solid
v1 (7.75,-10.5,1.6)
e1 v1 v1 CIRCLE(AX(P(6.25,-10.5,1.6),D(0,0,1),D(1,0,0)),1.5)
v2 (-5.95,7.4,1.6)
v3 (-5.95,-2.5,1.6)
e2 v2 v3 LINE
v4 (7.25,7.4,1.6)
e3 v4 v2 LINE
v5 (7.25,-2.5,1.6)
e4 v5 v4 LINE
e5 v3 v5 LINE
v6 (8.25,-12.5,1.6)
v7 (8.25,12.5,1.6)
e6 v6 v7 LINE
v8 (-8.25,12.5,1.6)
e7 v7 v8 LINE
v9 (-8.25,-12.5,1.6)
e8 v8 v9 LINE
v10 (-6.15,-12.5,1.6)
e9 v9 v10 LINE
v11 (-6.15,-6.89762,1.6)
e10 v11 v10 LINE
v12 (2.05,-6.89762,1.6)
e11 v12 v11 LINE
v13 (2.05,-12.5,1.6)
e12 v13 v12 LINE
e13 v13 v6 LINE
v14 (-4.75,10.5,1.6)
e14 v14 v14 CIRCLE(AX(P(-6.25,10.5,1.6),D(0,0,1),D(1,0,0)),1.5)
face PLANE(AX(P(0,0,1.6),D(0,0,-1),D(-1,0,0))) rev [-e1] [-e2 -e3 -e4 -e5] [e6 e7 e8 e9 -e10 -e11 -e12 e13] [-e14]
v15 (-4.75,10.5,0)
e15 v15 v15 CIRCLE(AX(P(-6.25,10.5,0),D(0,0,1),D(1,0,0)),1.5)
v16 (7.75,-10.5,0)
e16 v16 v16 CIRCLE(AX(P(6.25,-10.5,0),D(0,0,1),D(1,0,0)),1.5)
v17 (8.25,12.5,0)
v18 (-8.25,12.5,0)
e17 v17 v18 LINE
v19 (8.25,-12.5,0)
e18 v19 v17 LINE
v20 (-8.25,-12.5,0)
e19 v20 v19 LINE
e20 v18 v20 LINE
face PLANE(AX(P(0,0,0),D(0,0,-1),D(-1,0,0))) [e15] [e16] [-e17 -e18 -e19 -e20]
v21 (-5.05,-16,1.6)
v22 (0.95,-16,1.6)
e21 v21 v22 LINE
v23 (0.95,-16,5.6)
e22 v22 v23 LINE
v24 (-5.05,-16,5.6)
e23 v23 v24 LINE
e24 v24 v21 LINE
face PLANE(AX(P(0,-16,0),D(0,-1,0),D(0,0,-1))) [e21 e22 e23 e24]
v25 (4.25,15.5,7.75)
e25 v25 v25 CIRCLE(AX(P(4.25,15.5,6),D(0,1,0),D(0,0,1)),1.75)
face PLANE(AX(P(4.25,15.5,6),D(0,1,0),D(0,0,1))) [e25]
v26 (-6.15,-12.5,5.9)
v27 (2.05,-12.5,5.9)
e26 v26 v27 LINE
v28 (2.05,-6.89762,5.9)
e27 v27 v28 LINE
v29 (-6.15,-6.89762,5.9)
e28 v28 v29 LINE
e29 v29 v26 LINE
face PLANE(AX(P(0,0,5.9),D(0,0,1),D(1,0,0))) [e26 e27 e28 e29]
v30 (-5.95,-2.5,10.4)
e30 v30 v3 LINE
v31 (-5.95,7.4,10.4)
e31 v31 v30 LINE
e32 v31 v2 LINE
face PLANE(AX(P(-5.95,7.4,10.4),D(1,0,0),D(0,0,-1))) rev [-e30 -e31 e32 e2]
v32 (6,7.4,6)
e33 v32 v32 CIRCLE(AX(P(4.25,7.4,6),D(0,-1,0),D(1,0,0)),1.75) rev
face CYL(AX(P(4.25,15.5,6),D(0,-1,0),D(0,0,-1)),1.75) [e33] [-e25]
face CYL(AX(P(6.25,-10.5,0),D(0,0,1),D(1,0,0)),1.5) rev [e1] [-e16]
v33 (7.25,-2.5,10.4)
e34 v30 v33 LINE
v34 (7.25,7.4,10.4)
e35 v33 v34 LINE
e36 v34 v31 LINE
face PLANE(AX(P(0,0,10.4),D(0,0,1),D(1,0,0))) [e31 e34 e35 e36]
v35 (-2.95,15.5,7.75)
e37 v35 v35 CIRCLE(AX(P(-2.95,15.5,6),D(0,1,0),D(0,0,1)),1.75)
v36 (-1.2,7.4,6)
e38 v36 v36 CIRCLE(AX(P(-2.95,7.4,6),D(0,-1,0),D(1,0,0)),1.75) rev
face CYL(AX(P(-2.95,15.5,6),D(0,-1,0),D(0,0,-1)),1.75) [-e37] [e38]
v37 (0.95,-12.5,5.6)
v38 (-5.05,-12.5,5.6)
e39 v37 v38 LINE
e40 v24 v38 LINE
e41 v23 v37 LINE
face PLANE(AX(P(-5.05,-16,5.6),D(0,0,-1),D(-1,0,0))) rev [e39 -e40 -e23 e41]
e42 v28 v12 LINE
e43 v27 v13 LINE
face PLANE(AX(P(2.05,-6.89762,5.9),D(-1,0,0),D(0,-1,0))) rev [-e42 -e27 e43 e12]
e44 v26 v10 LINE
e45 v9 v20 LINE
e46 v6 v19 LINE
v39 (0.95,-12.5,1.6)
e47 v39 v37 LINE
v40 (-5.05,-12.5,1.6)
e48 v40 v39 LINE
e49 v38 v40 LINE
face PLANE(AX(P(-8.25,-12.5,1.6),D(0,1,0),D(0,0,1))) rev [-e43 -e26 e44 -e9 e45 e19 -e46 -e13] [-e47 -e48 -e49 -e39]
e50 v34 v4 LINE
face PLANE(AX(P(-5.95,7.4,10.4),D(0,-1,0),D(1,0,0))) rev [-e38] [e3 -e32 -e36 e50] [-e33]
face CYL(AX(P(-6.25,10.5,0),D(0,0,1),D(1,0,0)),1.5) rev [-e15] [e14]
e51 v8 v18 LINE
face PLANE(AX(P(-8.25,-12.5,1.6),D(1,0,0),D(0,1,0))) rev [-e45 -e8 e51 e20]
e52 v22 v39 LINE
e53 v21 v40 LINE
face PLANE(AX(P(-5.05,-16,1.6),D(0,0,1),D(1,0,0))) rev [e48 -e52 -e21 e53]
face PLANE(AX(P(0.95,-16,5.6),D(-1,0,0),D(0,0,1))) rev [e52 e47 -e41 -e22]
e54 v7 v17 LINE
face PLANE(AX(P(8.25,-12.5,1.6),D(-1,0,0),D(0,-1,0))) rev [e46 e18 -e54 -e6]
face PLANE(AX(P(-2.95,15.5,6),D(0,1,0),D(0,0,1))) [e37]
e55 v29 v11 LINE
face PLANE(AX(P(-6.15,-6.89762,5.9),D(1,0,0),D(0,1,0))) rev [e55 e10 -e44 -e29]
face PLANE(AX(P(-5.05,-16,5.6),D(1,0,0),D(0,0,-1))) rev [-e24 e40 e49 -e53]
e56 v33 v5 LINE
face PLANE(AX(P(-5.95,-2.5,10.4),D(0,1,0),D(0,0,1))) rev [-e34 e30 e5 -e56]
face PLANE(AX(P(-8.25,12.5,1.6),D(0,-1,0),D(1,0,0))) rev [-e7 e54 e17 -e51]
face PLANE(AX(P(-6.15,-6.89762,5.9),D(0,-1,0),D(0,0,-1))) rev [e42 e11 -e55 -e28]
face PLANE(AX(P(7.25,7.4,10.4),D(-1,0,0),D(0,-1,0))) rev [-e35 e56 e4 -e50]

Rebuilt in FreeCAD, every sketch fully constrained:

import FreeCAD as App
import Part
import Sketcher
Q = App.Units.Quantity


def add_polygon(sketch, points):
    """Adds a closed chain of lines whose ends are joined by coincident constraints."""
    first, n = sketch.GeometryCount, len(points)
    for a, b in zip(points, points[1:] + points[:1]):
        sketch.addGeometry(Part.LineSegment(App.Vector(*a, 0), App.Vector(*b, 0)), False)
    for i in range(n):
        sketch.addConstraint(Sketcher.Constraint("Coincident", first + i, 2, first + (i + 1) % n, 1))

doc = App.newDocument("Part")
body = doc.addObject("PartDesign::Body", "Body")

# Sketch on XY plane
sketch1 = body.newObject("Sketcher::SketchObject", "Sketch")
sketch1.AttachmentSupport = (doc.getObject("XY_Plane"), [""])
sketch1.MapMode = "FlatFace"
add_polygon(sketch1, [(-8.25, 12.5), (-8.25, -12.5), (8.25, -12.5), (8.25, 12.5)])  # lines 0-3
sketch1.addConstraint([
    Sketcher.Constraint("Vertical", 0),
    Sketcher.Constraint("Horizontal", 1),
    Sketcher.Constraint("Vertical", 2),
    Sketcher.Constraint("Horizontal", 3),
    Sketcher.Constraint("Symmetric", 0, 2, 2, 2, -1, 1),
    Sketcher.Constraint("DistanceY", 0, 2, 0, 1, Q("25 mm")),
    Sketcher.Constraint("DistanceX", 1, 1, 1, 2, Q("16.5 mm")),
])
pad1 = body.newObject("PartDesign::Pad", "Pad")
pad1.Profile = sketch1
pad1.Length = 1.6

# Sketch on XY plane
sketch2 = body.newObject("Sketcher::SketchObject", "Sketch001")
sketch2.AttachmentSupport = (doc.getObject("XY_Plane"), [""])
sketch2.MapMode = "FlatFace"
sketch2.AttachmentOffset = App.Placement(App.Vector(0, 0, 1.6), App.Rotation())
sketch2.addGeometry([
    Part.Circle(App.Vector(-6.25, 10.5, 0), App.Vector(0, 0, 1), 1.5),
    Part.Circle(App.Vector(6.25, -10.5, 0), App.Vector(0, 0, 1), 1.5),
], False)
sketch2.addConstraint([
    Sketcher.Constraint("Equal", 0, 1),
    Sketcher.Constraint("Symmetric", 0, 3, 1, 3, -1, 1),
    Sketcher.Constraint("Diameter", 0, Q("3 mm")),
    Sketcher.Constraint("DistanceY", 1, 3, 0, 3, Q("21 mm")),
    Sketcher.Constraint("DistanceX", 0, 3, 1, 3, Q("12.5 mm")),
])
pocket1 = body.newObject("PartDesign::Pocket", "Pocket")
pocket1.Profile = sketch2
pocket1.Type = "ThroughAll"

# Sketch on XY plane
sketch3 = body.newObject("Sketcher::SketchObject", "Sketch002")
sketch3.AttachmentSupport = (doc.getObject("XY_Plane"), [""])
sketch3.MapMode = "FlatFace"
sketch3.AttachmentOffset = App.Placement(App.Vector(0, 0, 1.6), App.Rotation())
add_polygon(sketch3, [(-5.95, 7.4), (-5.95, -2.5), (7.25, -2.5), (7.25, 7.4)])  # lines 0-3
sketch3.addConstraint([
    Sketcher.Constraint("Vertical", 0),
    Sketcher.Constraint("Horizontal", 1),
    Sketcher.Constraint("Vertical", 2),
    Sketcher.Constraint("Horizontal", 3),
    Sketcher.Constraint("DistanceX", 1, 1, 1, 2, Q("13.2 mm")),
    Sketcher.Constraint("DistanceY", 0, 2, 0, 1, Q("9.9 mm")),
    Sketcher.Constraint("DistanceY", 0, 2, -1, 1, Q("2.5 mm")),
    Sketcher.Constraint("DistanceX", 0, 2, -1, 1, Q("5.95 mm")),
])
pad2 = body.newObject("PartDesign::Pad", "Pad001")
pad2.Profile = sketch3
pad2.Length = 8.8

# Sketch on XZ plane
sketch4 = body.newObject("Sketcher::SketchObject", "Sketch003")
sketch4.AttachmentSupport = (doc.getObject("XZ_Plane"), [""])
sketch4.MapMode = "FlatFace"
sketch4.AttachmentOffset = App.Placement(App.Vector(0, 0, -7.4), App.Rotation())
sketch4.addGeometry([
    Part.Circle(App.Vector(-2.95, 6, 0), App.Vector(0, 0, 1), 1.75),
    Part.Circle(App.Vector(4.25, 6, 0), App.Vector(0, 0, 1), 1.75),
], False)
sketch4.addConstraint([
    Sketcher.Constraint("Equal", 0, 1),
    Sketcher.Constraint("Horizontal", 0, 3, 1, 3),
    Sketcher.Constraint("Diameter", 0, Q("3.5 mm")),
    Sketcher.Constraint("DistanceY", -1, 1, 0, 3, Q("6 mm")),
    Sketcher.Constraint("DistanceX", 0, 3, 1, 3, Q("7.2 mm")),
    Sketcher.Constraint("DistanceX", 0, 3, -1, 1, Q("2.95 mm")),
])
pad3 = body.newObject("PartDesign::Pad", "Pad002")
pad3.Profile = sketch4
pad3.Length = 8.1
pad3.Reversed = True

# Sketch on XY plane
sketch5 = body.newObject("Sketcher::SketchObject", "Sketch004")
sketch5.AttachmentSupport = (doc.getObject("XY_Plane"), [""])
sketch5.MapMode = "FlatFace"
sketch5.AttachmentOffset = App.Placement(App.Vector(0, 0, 1.6), App.Rotation())
add_polygon(sketch5, [(-6.15, -6.89762), (-6.15, -12.5), (2.05, -12.5), (2.05, -6.89762)])  # lines 0-3
sketch5.addConstraint([
    Sketcher.Constraint("Vertical", 0),
    Sketcher.Constraint("Horizontal", 1),
    Sketcher.Constraint("Vertical", 2),
    Sketcher.Constraint("Horizontal", 3),
    Sketcher.Constraint("DistanceX", 1, 1, 1, 2, Q("8.2 mm")),
    Sketcher.Constraint("DistanceY", 0, 2, -1, 1, Q("12.5 mm")),
    Sketcher.Constraint("DistanceX", 0, 2, -1, 1, Q("6.15 mm")),
    Sketcher.Constraint("DistanceY", 0, 2, 0, 1, Q("5.60238 mm")),
])
pad4 = body.newObject("PartDesign::Pad", "Pad003")
pad4.Profile = sketch5
pad4.Length = 4.3

# Sketch on XZ plane
sketch6 = body.newObject("Sketcher::SketchObject", "Sketch005")
sketch6.AttachmentSupport = (doc.getObject("XZ_Plane"), [""])
sketch6.MapMode = "FlatFace"
sketch6.AttachmentOffset = App.Placement(App.Vector(0, 0, 12.5), App.Rotation())
add_polygon(sketch6, [(0.95, 1.6), (0.95, 5.6), (-5.05, 5.6), (-5.05, 1.6)])  # lines 0-3
sketch6.addConstraint([
    Sketcher.Constraint("Vertical", 0),
    Sketcher.Constraint("Horizontal", 1),
    Sketcher.Constraint("Vertical", 2),
    Sketcher.Constraint("Horizontal", 3),
    Sketcher.Constraint("DistanceX", 1, 2, 1, 1, Q("6 mm")),
    Sketcher.Constraint("DistanceY", 0, 1, 0, 2, Q("4 mm")),
    Sketcher.Constraint("DistanceY", -1, 1, 0, 2, Q("5.6 mm")),
    Sketcher.Constraint("DistanceX", -1, 1, 0, 2, Q("0.95 mm")),
])
pad5 = body.newObject("PartDesign::Pad", "Pad004")
pad5.Profile = sketch6
pad5.Length = 3.5

doc.recompute()
